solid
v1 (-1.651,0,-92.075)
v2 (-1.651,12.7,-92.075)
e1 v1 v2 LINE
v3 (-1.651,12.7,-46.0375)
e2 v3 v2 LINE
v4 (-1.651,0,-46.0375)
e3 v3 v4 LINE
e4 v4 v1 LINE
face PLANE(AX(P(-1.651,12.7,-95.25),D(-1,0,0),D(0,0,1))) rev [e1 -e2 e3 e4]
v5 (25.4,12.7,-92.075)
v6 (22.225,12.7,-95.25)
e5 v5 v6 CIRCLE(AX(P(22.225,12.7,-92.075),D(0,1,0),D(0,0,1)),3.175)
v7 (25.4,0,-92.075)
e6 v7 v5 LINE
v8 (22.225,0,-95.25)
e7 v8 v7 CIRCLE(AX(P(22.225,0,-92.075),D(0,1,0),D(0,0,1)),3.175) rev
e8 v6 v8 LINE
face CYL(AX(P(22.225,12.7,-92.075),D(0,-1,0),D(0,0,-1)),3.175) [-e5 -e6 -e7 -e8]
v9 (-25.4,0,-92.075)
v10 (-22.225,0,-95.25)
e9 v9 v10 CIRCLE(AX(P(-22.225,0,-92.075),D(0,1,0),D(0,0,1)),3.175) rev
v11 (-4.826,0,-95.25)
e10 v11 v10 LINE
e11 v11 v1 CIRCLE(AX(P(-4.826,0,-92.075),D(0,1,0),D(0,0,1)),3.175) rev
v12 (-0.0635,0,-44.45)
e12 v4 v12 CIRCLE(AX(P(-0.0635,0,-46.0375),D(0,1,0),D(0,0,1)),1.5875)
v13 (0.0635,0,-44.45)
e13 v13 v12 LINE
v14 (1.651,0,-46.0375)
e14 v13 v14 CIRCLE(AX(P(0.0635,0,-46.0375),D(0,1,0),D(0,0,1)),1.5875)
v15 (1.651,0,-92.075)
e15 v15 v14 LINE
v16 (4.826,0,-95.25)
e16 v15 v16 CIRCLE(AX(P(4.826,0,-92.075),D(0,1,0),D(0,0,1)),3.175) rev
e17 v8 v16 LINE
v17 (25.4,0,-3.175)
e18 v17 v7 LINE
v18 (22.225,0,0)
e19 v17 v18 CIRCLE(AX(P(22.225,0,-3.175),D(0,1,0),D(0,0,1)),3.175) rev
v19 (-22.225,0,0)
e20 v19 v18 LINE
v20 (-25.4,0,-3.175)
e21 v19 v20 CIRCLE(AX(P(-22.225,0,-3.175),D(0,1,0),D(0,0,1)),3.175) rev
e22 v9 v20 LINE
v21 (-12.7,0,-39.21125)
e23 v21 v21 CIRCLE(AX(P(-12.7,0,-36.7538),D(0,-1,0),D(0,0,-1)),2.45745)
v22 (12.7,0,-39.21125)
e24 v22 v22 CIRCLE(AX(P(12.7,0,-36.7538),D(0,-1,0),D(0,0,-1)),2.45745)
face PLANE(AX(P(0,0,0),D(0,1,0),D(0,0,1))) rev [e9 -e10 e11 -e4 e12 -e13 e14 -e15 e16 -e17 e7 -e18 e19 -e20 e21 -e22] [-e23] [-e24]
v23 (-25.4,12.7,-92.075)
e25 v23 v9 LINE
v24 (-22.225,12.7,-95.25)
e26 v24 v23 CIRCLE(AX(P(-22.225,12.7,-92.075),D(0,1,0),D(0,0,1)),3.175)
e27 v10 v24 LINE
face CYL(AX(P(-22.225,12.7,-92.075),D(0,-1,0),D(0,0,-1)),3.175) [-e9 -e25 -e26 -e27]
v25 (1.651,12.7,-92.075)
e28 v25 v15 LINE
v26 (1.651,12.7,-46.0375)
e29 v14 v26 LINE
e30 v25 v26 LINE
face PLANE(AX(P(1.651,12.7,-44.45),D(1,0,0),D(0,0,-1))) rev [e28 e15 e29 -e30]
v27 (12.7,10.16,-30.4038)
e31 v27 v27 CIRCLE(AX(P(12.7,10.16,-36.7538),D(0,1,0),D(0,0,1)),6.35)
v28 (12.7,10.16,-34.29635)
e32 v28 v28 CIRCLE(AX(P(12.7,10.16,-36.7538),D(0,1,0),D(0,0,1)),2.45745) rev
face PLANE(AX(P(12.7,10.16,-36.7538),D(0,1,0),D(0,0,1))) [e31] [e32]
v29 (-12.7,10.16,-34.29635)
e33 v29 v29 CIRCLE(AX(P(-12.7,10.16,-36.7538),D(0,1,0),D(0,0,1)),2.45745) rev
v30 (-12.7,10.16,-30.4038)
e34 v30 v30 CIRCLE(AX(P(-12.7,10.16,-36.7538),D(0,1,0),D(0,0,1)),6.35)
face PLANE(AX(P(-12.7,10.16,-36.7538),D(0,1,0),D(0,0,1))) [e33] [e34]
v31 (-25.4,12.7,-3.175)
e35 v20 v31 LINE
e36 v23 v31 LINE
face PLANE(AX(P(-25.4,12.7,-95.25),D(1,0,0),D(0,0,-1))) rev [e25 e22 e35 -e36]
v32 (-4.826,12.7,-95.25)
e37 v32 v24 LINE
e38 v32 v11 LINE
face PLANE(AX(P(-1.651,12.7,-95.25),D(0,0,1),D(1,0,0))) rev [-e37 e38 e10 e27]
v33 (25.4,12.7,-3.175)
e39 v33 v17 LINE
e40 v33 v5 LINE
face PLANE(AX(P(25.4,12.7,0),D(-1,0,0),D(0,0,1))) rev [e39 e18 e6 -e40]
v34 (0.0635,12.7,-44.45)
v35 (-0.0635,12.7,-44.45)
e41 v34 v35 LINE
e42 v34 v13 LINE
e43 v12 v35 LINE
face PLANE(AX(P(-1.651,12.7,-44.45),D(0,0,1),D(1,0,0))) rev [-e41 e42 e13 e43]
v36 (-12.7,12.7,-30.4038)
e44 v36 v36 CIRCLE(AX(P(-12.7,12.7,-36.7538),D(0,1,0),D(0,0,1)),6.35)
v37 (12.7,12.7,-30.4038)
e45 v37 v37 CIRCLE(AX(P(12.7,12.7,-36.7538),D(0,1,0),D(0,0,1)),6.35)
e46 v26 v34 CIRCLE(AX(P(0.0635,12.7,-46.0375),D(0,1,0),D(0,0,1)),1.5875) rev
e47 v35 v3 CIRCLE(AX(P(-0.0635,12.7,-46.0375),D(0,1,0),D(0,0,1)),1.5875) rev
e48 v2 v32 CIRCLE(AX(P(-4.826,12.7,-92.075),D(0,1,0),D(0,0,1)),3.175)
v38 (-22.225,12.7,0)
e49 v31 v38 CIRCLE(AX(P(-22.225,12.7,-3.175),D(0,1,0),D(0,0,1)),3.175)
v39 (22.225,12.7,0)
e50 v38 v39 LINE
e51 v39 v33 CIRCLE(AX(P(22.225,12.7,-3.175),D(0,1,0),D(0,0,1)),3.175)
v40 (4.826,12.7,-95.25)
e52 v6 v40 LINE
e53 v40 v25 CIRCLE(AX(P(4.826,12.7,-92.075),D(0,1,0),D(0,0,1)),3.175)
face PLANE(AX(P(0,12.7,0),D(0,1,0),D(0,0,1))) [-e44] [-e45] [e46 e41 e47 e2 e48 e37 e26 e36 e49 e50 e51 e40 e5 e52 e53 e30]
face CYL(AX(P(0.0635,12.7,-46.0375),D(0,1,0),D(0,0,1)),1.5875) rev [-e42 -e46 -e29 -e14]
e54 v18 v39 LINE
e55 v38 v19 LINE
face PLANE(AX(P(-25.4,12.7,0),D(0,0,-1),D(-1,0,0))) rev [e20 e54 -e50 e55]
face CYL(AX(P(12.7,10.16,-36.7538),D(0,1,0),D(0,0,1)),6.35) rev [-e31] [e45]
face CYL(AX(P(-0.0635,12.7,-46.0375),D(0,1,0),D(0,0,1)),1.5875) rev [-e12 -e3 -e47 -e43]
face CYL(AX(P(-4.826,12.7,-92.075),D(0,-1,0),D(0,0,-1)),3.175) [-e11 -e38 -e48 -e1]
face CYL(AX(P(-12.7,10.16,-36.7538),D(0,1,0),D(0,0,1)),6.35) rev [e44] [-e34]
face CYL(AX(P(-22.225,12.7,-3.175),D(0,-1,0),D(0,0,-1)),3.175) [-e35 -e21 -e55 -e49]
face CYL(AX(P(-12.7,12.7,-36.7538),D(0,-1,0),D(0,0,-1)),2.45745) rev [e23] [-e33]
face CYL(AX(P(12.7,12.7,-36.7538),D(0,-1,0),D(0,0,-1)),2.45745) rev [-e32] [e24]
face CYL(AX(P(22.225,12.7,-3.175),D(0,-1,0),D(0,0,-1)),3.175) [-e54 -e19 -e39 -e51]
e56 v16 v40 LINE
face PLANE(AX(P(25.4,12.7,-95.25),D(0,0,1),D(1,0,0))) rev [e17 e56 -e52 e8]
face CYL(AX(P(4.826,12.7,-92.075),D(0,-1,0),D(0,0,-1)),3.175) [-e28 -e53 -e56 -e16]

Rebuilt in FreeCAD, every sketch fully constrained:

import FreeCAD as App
import Part
import Sketcher
Q = App.Units.Quantity


def edges_at(feature, points):
    """Names of the edges that pass closest to the given points."""
    edges = feature.Shape.Edges
    near = lambda p: min(range(len(edges)), key=lambda i: edges[i].distToShape(Part.Vertex(*p))[0])
    return sorted({f"Edge{near(p) + 1}" for p in points})

doc = App.newDocument("Part")
body = doc.addObject("PartDesign::Body", "Body")

# Sketch on XZ plane
sketch1 = doc.addObject("Sketcher::SketchObject", "Sketch")
body.addObject(sketch1)
sketch1.AttachmentSupport = (doc.XZ_Plane, [""])
sketch1.MapMode = "FlatFace"
sketch1.addGeometry(Part.LineSegment(App.Vector(-25.4, 0, 0), App.Vector(25.4, 0, 0)), False)
sketch1.addGeometry(Part.LineSegment(App.Vector(25.4, 0, 0), App.Vector(25.4, -95.2, 0)), False)
sketch1.addGeometry(Part.LineSegment(App.Vector(25.4, -95.2, 0), App.Vector(1.7, -95.2, 0)), False)
sketch1.addGeometry(Part.LineSegment(App.Vector(1.7, -95.2, 0), App.Vector(1.7, -44.5, 0)), False)
sketch1.addGeometry(Part.LineSegment(App.Vector(1.7, -44.5, 0), App.Vector(-1.7, -44.5, 0)), False)
sketch1.addGeometry(Part.LineSegment(App.Vector(-1.7, -44.5, 0), App.Vector(-1.7, -95.2, 0)), False)
sketch1.addGeometry(Part.LineSegment(App.Vector(-1.7, -95.2, 0), App.Vector(-25.4, -95.2, 0)), False)
sketch1.addGeometry(Part.LineSegment(App.Vector(-25.4, -95.2, 0), App.Vector(-25.4, 0, 0)), False)
sketch1.addConstraint(Sketcher.Constraint("Coincident", 0, 2, 1, 1))
sketch1.addConstraint(Sketcher.Constraint("Coincident", 1, 2, 2, 1))
sketch1.addConstraint(Sketcher.Constraint("Coincident", 2, 2, 3, 1))
sketch1.addConstraint(Sketcher.Constraint("Coincident", 3, 2, 4, 1))
sketch1.addConstraint(Sketcher.Constraint("Coincident", 4, 2, 5, 1))
sketch1.addConstraint(Sketcher.Constraint("Coincident", 5, 2, 6, 1))
sketch1.addConstraint(Sketcher.Constraint("Coincident", 6, 2, 7, 1))
sketch1.addConstraint(Sketcher.Constraint("Coincident", 7, 2, 0, 1))
sketch1.addConstraint(Sketcher.Constraint("Horizontal", 0))
sketch1.addConstraint(Sketcher.Constraint("Vertical", 1))
sketch1.addConstraint(Sketcher.Constraint("Horizontal", 2))
sketch1.addConstraint(Sketcher.Constraint("Vertical", 3))
sketch1.addConstraint(Sketcher.Constraint("Horizontal", 4))
sketch1.addConstraint(Sketcher.Constraint("Vertical", 5))
sketch1.addConstraint(Sketcher.Constraint("Horizontal", 6))
sketch1.addConstraint(Sketcher.Constraint("Vertical", 7))
sketch1.addConstraint(Sketcher.Constraint("Symmetric", 0, 2, 7, 2, -1, 1))
sketch1.addConstraint(Sketcher.Constraint("Symmetric", 2, 2, 5, 2, -2))
sketch1.addConstraint(Sketcher.Constraint("Equal", 0, 3))
sketch1.addConstraint(Sketcher.Constraint("DistanceX", 0, 1, 0, 2, Q("2 in")))
sketch1.addConstraint(Sketcher.Constraint("DistanceX", 4, 2, 4, 1, Q("0.13 in")))
sketch1.addConstraint(Sketcher.Constraint("DistanceY", 1, 2, 1, 1, Q("3.75 in")))
pad1 = doc.addObject("PartDesign::Pad", "Pad")
body.addObject(pad1)
pad1.Profile = sketch1
pad1.Length = Q("0.5 in")
pad1.Reversed = True
doc.recompute()

fillet = doc.addObject("PartDesign::Fillet", "Fillet")
body.addObject(fillet)
fillet.Base = (pad1, edges_at(pad1, [
    (-25.4, 6.35, -95.25),
    (-1.651, 6.35, -95.25),
    (1.651, 6.35, -95.25),
    (25.4, 6.35, -95.25),
    (25.4, 6.35, 0),
    (-25.4, 6.35, 0),
]))
fillet.Radius = Q("0.125 in")
doc.recompute()

fillet2 = doc.addObject("PartDesign::Fillet", "Fillet001")
body.addObject(fillet2)
fillet2.Base = (fillet, edges_at(fillet, [(-1.651, 6.35, -44.45), (1.651, 6.35, -44.45)]))
fillet2.Radius = Q("0.0625 in")

# Sketch on XZ plane
sketch2 = doc.addObject("Sketcher::SketchObject", "Sketch001")
body.addObject(sketch2)
sketch2.AttachmentSupport = (doc.XZ_Plane, [""])
sketch2.MapMode = "FlatFace"
sketch2.addGeometry(Part.Circle(App.Vector(-12.7, -36.8, 0), App.Vector(0, 0, 1), 2.5), False)
sketch2.addGeometry(Part.Circle(App.Vector(12.7, -36.8, 0), App.Vector(0, 0, 1), 2.5), False)
sketch2.addConstraint(Sketcher.Constraint("Equal", 0, 1))
sketch2.addConstraint(Sketcher.Constraint("Symmetric", 0, 3, 1, 3, -2))
sketch2.addConstraint(Sketcher.Constraint("DistanceX", 0, 3, 1, 3, Q("1 in")))
sketch2.addConstraint(Sketcher.Constraint("Diameter", 0, Q("0.1935 in")))
sketch2.addConstraint(Sketcher.Constraint("DistanceY", 0, 3, -1, 1, Q("1.447 in")))
pocket1 = doc.addObject("PartDesign::Pocket", "Pocket")
body.addObject(pocket1)
pocket1.Profile = sketch2
pocket1.Type = "ThroughAll"

# Sketch on XZ plane
sketch3 = doc.addObject("Sketcher::SketchObject", "Sketch002")
body.addObject(sketch3)
sketch3.AttachmentSupport = (doc.XZ_Plane, [""])
sketch3.MapMode = "FlatFace"
sketch3.AttachmentOffset = App.Placement(App.Vector(0, 0, -0.5 * 25.4), App.Rotation())
sketch3.addGeometry(Part.Circle(App.Vector(13, -37, 0), App.Vector(0, 0, 1), 6), False)
sketch3.addGeometry(Part.Circle(App.Vector(-13, -37, 0), App.Vector(0, 0, 1), 6), False)
sketch3.addConstraint(Sketcher.Constraint("Equal", 0, 1))
sketch3.addConstraint(Sketcher.Constraint("Symmetric", 0, 3, 1, 3, -2))
sketch3.addConstraint(Sketcher.Constraint("Diameter", 0, Q("0.5 in")))
sketch3.addConstraint(Sketcher.Constraint("DistanceX", 1, 3, 0, 3, Q("1 in")))
sketch3.addConstraint(Sketcher.Constraint("DistanceY", 0, 3, -1, 1, Q("1.447 in")))
pocket2 = doc.addObject("PartDesign::Pocket", "Pocket001")
body.addObject(pocket2)
pocket2.Profile = sketch3
pocket2.Length = Q("0.1 in")
pocket2.Reversed = True

doc.recompute()
